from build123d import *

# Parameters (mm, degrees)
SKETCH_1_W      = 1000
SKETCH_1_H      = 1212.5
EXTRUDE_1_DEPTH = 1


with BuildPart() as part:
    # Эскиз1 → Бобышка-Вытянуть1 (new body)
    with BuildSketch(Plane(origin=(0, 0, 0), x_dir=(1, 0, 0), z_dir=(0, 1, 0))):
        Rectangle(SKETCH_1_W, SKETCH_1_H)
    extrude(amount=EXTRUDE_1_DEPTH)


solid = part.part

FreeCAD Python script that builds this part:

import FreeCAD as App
import Part
import Sketcher
from FreeCAD import Vector
Q = App.Units.Quantity

doc = App.newDocument("Part")
body = doc.addObject("PartDesign::Body", "Body")

sketch1 = body.newObject("Sketcher::SketchObject", "Sketch")
sketch1.AttachmentSupport = (doc.getObject("XZ_Plane"), [""])
sketch1.MapMode = "FlatFace"
sketch1.addGeometry(Part.LineSegment(Vector(-500, -606, 0), Vector(-500, 606, 0)), False)
sketch1.addGeometry(Part.LineSegment(Vector(-500, 606, 0), Vector(500, 606, 0)), False)
sketch1.addGeometry(Part.LineSegment(Vector(500, 606, 0), Vector(500, -606, 0)), False)
sketch1.addGeometry(Part.LineSegment(Vector(500, -606, 0), Vector(-500, -606, 0)), False)
sketch1.addConstraint(Sketcher.Constraint("Coincident", 0, 2, 1, 1))
sketch1.addConstraint(Sketcher.Constraint("Coincident", 1, 2, 2, 1))
sketch1.addConstraint(Sketcher.Constraint("Coincident", 2, 2, 3, 1))
sketch1.addConstraint(Sketcher.Constraint("Coincident", 3, 2, 0, 1))
sketch1.addConstraint(Sketcher.Constraint("Vertical", 0))
sketch1.addConstraint(Sketcher.Constraint("Horizontal", 1))
sketch1.addConstraint(Sketcher.Constraint("Vertical", 2))
sketch1.addConstraint(Sketcher.Constraint("Horizontal", 3))
sketch1.addConstraint(Sketcher.Constraint("Symmetric", 0, 2, 2, 2, -1, 1))
sketch1.addConstraint(Sketcher.Constraint("DistanceX", 1, 1, 1, 2, Q("1000 mm")))
sketch1.addConstraint(Sketcher.Constraint("DistanceY", 0, 1, 0, 2, Q("1212.5 mm")))
pad1 = body.newObject("PartDesign::Pad", "Pad")
pad1.Profile = sketch1
pad1.Length = 1
pad1.Reversed = True

doc.recompute()
